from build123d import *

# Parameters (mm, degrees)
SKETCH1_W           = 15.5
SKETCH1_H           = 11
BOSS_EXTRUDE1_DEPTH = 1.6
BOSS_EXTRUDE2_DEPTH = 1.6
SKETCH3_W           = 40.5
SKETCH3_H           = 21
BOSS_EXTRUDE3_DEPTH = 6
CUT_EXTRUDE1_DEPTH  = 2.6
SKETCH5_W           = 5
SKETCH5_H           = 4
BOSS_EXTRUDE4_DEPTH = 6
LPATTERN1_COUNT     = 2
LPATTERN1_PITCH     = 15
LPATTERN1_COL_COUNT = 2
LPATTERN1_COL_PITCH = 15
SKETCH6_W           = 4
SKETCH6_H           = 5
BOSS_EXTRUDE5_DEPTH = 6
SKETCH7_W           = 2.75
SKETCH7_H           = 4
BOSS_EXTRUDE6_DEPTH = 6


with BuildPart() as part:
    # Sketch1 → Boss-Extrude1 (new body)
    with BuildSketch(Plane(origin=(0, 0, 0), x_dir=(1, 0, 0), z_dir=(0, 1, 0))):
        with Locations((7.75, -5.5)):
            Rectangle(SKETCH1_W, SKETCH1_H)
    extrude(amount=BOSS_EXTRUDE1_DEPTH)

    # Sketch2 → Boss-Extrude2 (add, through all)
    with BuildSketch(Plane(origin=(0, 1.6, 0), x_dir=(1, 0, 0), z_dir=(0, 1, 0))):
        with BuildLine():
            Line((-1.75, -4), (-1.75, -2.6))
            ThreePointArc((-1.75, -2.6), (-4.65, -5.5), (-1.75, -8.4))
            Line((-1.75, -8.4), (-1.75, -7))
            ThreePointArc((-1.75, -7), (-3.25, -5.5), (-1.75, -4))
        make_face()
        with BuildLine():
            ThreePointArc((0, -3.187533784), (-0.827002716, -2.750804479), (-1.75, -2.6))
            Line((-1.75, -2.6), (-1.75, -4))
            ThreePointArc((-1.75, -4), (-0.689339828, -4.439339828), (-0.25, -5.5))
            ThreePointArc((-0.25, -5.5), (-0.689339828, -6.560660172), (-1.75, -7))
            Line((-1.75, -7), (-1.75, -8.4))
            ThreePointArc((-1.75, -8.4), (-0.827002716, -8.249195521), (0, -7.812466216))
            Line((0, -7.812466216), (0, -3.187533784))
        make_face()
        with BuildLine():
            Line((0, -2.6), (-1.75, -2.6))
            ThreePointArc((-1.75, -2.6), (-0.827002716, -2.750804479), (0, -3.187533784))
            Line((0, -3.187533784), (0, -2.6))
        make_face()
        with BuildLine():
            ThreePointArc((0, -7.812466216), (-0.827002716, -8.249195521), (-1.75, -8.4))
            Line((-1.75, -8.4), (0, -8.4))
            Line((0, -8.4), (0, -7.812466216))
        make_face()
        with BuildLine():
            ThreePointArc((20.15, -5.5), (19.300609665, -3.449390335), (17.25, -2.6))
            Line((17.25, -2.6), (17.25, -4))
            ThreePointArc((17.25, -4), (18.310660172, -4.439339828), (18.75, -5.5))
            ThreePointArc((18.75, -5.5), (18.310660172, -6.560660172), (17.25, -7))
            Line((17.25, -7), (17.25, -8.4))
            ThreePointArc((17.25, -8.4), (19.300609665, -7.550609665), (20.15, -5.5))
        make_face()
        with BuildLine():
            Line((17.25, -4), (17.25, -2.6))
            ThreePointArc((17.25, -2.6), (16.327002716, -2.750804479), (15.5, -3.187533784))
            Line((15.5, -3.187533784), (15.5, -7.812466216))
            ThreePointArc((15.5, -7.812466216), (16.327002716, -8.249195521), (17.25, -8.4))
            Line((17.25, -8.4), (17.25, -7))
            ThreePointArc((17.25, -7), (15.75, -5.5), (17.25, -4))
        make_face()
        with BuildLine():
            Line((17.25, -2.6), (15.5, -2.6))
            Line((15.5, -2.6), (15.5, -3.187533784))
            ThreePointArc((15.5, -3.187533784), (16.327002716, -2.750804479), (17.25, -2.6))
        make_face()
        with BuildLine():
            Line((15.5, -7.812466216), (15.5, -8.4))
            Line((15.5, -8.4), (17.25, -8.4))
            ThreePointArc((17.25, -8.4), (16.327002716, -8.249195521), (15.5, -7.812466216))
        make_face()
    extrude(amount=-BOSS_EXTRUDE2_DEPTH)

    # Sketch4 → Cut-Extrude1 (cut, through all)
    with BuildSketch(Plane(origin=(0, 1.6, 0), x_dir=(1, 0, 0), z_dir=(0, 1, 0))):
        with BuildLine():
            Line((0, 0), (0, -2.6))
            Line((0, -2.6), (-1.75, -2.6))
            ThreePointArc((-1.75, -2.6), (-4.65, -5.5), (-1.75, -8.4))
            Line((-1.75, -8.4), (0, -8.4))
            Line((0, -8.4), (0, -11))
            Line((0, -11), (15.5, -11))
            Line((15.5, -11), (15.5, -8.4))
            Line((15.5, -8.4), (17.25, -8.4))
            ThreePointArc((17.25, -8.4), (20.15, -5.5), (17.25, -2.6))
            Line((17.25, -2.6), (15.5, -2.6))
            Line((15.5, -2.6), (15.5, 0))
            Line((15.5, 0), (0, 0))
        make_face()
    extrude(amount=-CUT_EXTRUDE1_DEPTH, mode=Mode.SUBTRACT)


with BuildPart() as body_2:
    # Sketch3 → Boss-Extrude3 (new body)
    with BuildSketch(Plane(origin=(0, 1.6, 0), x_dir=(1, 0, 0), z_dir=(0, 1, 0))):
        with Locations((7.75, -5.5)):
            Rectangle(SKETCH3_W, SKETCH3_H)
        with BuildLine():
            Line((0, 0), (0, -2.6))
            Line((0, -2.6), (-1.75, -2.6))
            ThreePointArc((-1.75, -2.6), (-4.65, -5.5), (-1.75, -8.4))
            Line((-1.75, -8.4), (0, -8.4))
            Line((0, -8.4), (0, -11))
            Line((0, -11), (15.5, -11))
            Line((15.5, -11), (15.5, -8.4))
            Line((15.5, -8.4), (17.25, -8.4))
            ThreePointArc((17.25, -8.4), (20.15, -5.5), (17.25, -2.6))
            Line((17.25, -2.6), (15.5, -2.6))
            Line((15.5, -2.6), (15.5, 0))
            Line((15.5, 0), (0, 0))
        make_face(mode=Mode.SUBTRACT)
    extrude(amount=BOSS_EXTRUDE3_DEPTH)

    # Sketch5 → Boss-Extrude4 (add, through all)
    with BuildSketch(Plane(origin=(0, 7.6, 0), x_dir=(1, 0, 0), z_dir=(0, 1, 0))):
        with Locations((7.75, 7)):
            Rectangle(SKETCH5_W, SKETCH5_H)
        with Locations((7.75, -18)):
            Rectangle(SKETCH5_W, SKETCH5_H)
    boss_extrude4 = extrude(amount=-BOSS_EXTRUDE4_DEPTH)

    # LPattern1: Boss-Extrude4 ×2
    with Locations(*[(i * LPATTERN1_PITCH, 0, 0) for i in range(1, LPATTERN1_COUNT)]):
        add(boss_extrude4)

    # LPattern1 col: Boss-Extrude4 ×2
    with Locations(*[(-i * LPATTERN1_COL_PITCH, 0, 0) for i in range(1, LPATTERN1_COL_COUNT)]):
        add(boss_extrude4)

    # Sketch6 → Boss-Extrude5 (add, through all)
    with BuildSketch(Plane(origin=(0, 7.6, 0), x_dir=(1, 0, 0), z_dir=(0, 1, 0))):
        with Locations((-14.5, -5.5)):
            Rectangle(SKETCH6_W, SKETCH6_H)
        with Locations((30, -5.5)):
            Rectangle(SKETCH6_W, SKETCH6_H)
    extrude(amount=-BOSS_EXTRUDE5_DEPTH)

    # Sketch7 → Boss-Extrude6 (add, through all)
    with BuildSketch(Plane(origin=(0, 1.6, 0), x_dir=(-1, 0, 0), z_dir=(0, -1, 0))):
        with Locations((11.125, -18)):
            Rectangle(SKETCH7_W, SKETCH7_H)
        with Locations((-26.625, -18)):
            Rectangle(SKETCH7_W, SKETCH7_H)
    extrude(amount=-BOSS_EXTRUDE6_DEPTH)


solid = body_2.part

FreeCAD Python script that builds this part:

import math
import FreeCAD as App
import Part
import Sketcher
Q = App.Units.Quantity


def add_polygon(sketch, points):
    """Adds a closed chain of lines whose ends are joined by coincident constraints."""
    first, n = sketch.GeometryCount, len(points)
    for a, b in zip(points, points[1:] + points[:1]):
        sketch.addGeometry(Part.LineSegment(App.Vector(*a, 0), App.Vector(*b, 0)), False)
    for i in range(n):
        sketch.addConstraint(Sketcher.Constraint("Coincident", first + i, 2, first + (i + 1) % n, 1))

doc = App.newDocument("Part")
body = doc.addObject("PartDesign::Body", "Body")

sketch1 = body.newObject("Sketcher::SketchObject", "Sketch")
sketch1.AttachmentSupport = (doc.getObject("XZ_Plane"), [""])
sketch1.MapMode = "FlatFace"
add_polygon(sketch1, [(0, 0), (0, 11), (16, 11), (16, 0)])
sketch1.addConstraint([
    Sketcher.Constraint("Vertical", 0),
    Sketcher.Constraint("Horizontal", 1),
    Sketcher.Constraint("Vertical", 2),
    Sketcher.Constraint("Horizontal", 3),
    Sketcher.Constraint("Coincident", 3, 2, -1, 1),
    Sketcher.Constraint("DistanceY", 0, 1, 0, 2, Q("11 mm")),
    Sketcher.Constraint("DistanceX", 1, 1, 1, 2, Q("15.5 mm")),
])
pad1 = body.newObject("PartDesign::Pad", "Pad")
pad1.Profile = sketch1
pad1.Length = 1.6
pad1.Reversed = True

sketch2 = body.newObject("Sketcher::SketchObject", "Sketch001")
sketch2.AttachmentSupport = (doc.getObject("XZ_Plane"), [""])
sketch2.MapMode = "FlatFace"
sketch2.AttachmentOffset = App.Placement(App.Vector(0, 0, -1.6), App.Rotation())
sketch2.addGeometry([
    Part.ArcOfCircle(Part.Circle(App.Vector(-1.8, 5.5, 0), App.Vector(0, 0, 1), 2.9), math.radians(90), math.radians(270)),
    Part.LineSegment(App.Vector(-1.8, 8.4, 0), App.Vector(0, 8.4, 0)),
    Part.LineSegment(App.Vector(0, 8.4, 0), App.Vector(0, 2.6, 0)),
    Part.LineSegment(App.Vector(0, 2.6, 0), App.Vector(-1.8, 2.6, 0)),
    Part.ArcOfCircle(Part.Circle(App.Vector(-1.8, 5.5, 0), App.Vector(0, 0, 1), 1.5), math.radians(90), math.radians(270)),
    Part.ArcOfCircle(Part.Circle(App.Vector(-1.7, 5.5, 0), App.Vector(0, 0, 1), 1.5), math.radians(-90), math.radians(0)),
    Part.ArcOfCircle(Part.Circle(App.Vector(-1.7, 5.5, 0), App.Vector(0, 0, 1), 1.5), math.radians(0), math.radians(90)),
    Part.ArcOfCircle(Part.Circle(App.Vector(17.2, 5.5, 0), App.Vector(0, 0, 1), 2.9), math.radians(-90), math.radians(0)),
    Part.LineSegment(App.Vector(17.2, 2.6, 0), App.Vector(15.5, 2.6, 0)),
    Part.LineSegment(App.Vector(15.5, 2.6, 0), App.Vector(15.5, 8.4, 0)),
    Part.LineSegment(App.Vector(15.5, 8.4, 0), App.Vector(17.2, 8.4, 0)),
    Part.ArcOfCircle(Part.Circle(App.Vector(17.2, 5.5, 0), App.Vector(0, 0, 1), 2.9), math.radians(0), math.radians(90)),
    Part.ArcOfCircle(Part.Circle(App.Vector(17.3, 5.5, 0), App.Vector(0, 0, 1), 1.5), math.radians(-90), math.radians(0)),
    Part.ArcOfCircle(Part.Circle(App.Vector(17.3, 5.5, 0), App.Vector(0, 0, 1), 1.5), math.radians(0), math.radians(90)),
    Part.ArcOfCircle(Part.Circle(App.Vector(17.2, 5.5, 0), App.Vector(0, 0, 1), 1.5), math.radians(90), math.radians(270)),
], False)
sketch2.addConstraint([
    Sketcher.Constraint("Tangent", 0, 1, 1, 1),
    Sketcher.Constraint("Coincident", 1, 2, 2, 1),
    Sketcher.Constraint("Coincident", 2, 2, 3, 1),
    Sketcher.Constraint("Tangent", 3, 2, 0, 2),
    Sketcher.Constraint("Tangent", 4, 2, 5, 1),
    Sketcher.Constraint("Tangent", 5, 2, 6, 1),
    Sketcher.Constraint("Tangent", 6, 2, 4, 1),
    Sketcher.Constraint("Tangent", 7, 1, 8, 1),
    Sketcher.Constraint("Coincident", 8, 2, 9, 1),
    Sketcher.Constraint("Coincident", 9, 2, 10, 1),
    Sketcher.Constraint("Tangent", 10, 2, 11, 2),
    Sketcher.Constraint("Tangent", 11, 1, 7, 2),
    Sketcher.Constraint("Tangent", 12, 2, 13, 1),
    Sketcher.Constraint("Tangent", 13, 2, 14, 1),
    Sketcher.Constraint("Tangent", 14, 2, 12, 1),
    Sketcher.Constraint("Horizontal", 1),
    Sketcher.Constraint("Vertical", 2),
    Sketcher.Constraint("Horizontal", 3),
    Sketcher.Constraint("Horizontal", 8),
    Sketcher.Constraint("Vertical", 9),
    Sketcher.Constraint("Horizontal", 10),
    Sketcher.Constraint("Coincident", 4, 3, 0, 3),
    Sketcher.Constraint("Coincident", 12, 3, 7, 3),
    Sketcher.Constraint("Equal", 0, 7),
    Sketcher.Constraint("Equal", 7, 11),
    Sketcher.Constraint("Equal", 6, 12),
    Sketcher.Constraint("PointOnObject", 1, 2, -2),
    Sketcher.Constraint("Horizontal", 6, 3, 7, 3),
    Sketcher.Constraint("Horizontal", 14, 3, 5, 2),
    Sketcher.Constraint("Horizontal", 5, 2, 11, 1),
    Sketcher.Constraint("Horizontal", 11, 1, 12, 2),
    Sketcher.Constraint("Vertical", 3, 2, 4, 2),
    Sketcher.Constraint("Vertical", 4, 2, 6, 2),
    Sketcher.Constraint("Vertical", 10, 2, 13, 2),
    Sketcher.Constraint("Vertical", 13, 2, 14, 2),
    Sketcher.Constraint("Equal", 3, 8),
    Sketcher.Constraint("Radius", 0, Q("2.9 mm")),
    Sketcher.Constraint("Radius", 4, Q("1.5 mm")),
    Sketcher.Constraint("DistanceY", -1, 1, 4, 2, Q("4 mm")),
    Sketcher.Constraint("DistanceX", 5, 3, 7, 3, Q("19 mm")),
    Sketcher.Constraint("DistanceX", 1, 1, 1, 2, Q("1.75 mm")),
])
pad2 = body.newObject("PartDesign::Pad", "Pad001")
pad2.Profile = sketch2
pad2.Type = "UpToLast"

sketch3 = body.newObject("Sketcher::SketchObject", "Sketch002")
sketch3.AttachmentSupport = (doc.getObject("XZ_Plane"), [""])
sketch3.MapMode = "FlatFace"
sketch3.AttachmentOffset = App.Placement(App.Vector(0, 0, -1.6), App.Rotation())
sketch3.addGeometry([
    Part.LineSegment(App.Vector(0, 0, 0), App.Vector(0, 2.6, 0)),
    Part.LineSegment(App.Vector(0, 2.6, 0), App.Vector(-1.8, 2.6, 0)),
    Part.ArcOfCircle(Part.Circle(App.Vector(-1.8, 5.5, 0), App.Vector(0, 0, 1), 2.9), math.radians(90), math.radians(270)),
    Part.LineSegment(App.Vector(-1.8, 8.4, 0), App.Vector(0, 8.4, 0)),
    Part.LineSegment(App.Vector(0, 8.4, 0), App.Vector(0, 11, 0)),
    Part.LineSegment(App.Vector(0, 11, 0), App.Vector(15.5, 11, 0)),
    Part.LineSegment(App.Vector(15.5, 11, 0), App.Vector(15.5, 8.4, 0)),
    Part.LineSegment(App.Vector(15.5, 8.4, 0), App.Vector(17.2, 8.4, 0)),
    Part.ArcOfCircle(Part.Circle(App.Vector(17.2, 5.5, 0), App.Vector(0, 0, 1), 2.9), math.radians(-90), math.radians(90)),
    Part.LineSegment(App.Vector(17.2, 2.6, 0), App.Vector(15.5, 2.6, 0)),
    Part.LineSegment(App.Vector(15.5, 2.6, 0), App.Vector(15.5, 0, 0)),
    Part.LineSegment(App.Vector(15.5, 0, 0), App.Vector(0, 0, 0)),
], False)
sketch3.addConstraint([
    Sketcher.Constraint("Coincident", 0, 2, 1, 1),
    Sketcher.Constraint("Tangent", 1, 2, 2, 2),
    Sketcher.Constraint("Tangent", 2, 1, 3, 1),
    Sketcher.Constraint("Coincident", 3, 2, 4, 1),
    Sketcher.Constraint("Coincident", 4, 2, 5, 1),
    Sketcher.Constraint("Coincident", 5, 2, 6, 1),
    Sketcher.Constraint("Coincident", 6, 2, 7, 1),
    Sketcher.Constraint("Tangent", 7, 2, 8, 2),
    Sketcher.Constraint("Tangent", 8, 1, 9, 1),
    Sketcher.Constraint("Coincident", 9, 2, 10, 1),
    Sketcher.Constraint("Coincident", 10, 2, 11, 1),
    Sketcher.Constraint("Coincident", 11, 2, 0, 1),
    Sketcher.Constraint("Vertical", 0),
    Sketcher.Constraint("Horizontal", 1),
    Sketcher.Constraint("Horizontal", 3),
    Sketcher.Constraint("Vertical", 4),
    Sketcher.Constraint("Horizontal", 5),
    Sketcher.Constraint("Vertical", 6),
    Sketcher.Constraint("Horizontal", 7),
    Sketcher.Constraint("Horizontal", 9),
    Sketcher.Constraint("Vertical", 10),
    Sketcher.Constraint("Horizontal", 11),
    Sketcher.Constraint("Coincident", 11, 2, -1, 1),
    Sketcher.Constraint("Equal", 2, 8),
    Sketcher.Constraint("PointOnObject", 3, 2, -2),
    Sketcher.Constraint("Horizontal", 2, 3, 8, 3),
    Sketcher.Constraint("Vertical", 6, 2, 9, 2),
    Sketcher.Constraint("Equal", 3, 7),
    Sketcher.Constraint("Equal", 0, 4),
    Sketcher.Constraint("Radius", 2, Q("2.9 mm")),
    Sketcher.Constraint("DistanceX", 5, 1, 5, 2, Q("15.5 mm")),
    Sketcher.Constraint("DistanceY", 0, 1, 0, 2, Q("2.6 mm")),
    Sketcher.Constraint("DistanceX", 2, 3, 8, 3, Q("19 mm")),
])
pocket1 = body.newObject("PartDesign::Pocket", "Pocket")
pocket1.Profile = sketch3
pocket1.Type = "ThroughAll"
pocket1.Reversed = True
body2 = doc.addObject("PartDesign::Body", "Body001")

sketch4 = body2.newObject("Sketcher::SketchObject", "Sketch003")
sketch4.AttachmentSupport = (doc.getObject("XZ_Plane001"), [""])
sketch4.MapMode = "FlatFace"
sketch4.AttachmentOffset = App.Placement(App.Vector(0, 0, -1.6), App.Rotation())
add_polygon(sketch4, [(-12.5, -5), (-12.5, 16), (28, 16), (28, -5)])
sketch4.addGeometry(Part.LineSegment(App.Vector(0, 2.6, 0), App.Vector(0, 0, 0)), False)
sketch4.addGeometry(Part.LineSegment(App.Vector(0, 0, 0), App.Vector(15.5, 0, 0)), False)
sketch4.addGeometry(Part.LineSegment(App.Vector(15.5, 0, 0), App.Vector(15.5, 2.6, 0)), False)
sketch4.addGeometry(Part.LineSegment(App.Vector(15.5, 2.6, 0), App.Vector(17.2, 2.6, 0)), False)
sketch4.addGeometry(Part.ArcOfCircle(Part.Circle(App.Vector(17.2, 5.5, 0), App.Vector(0, 0, 1), 2.9), math.radians(-90), math.radians(90)), False)
sketch4.addGeometry(Part.LineSegment(App.Vector(17.2, 8.4, 0), App.Vector(15.5, 8.4, 0)), False)
sketch4.addGeometry(Part.LineSegment(App.Vector(15.5, 8.4, 0), App.Vector(15.5, 11, 0)), False)
sketch4.addGeometry(Part.LineSegment(App.Vector(15.5, 11, 0), App.Vector(0, 11, 0)), False)
sketch4.addGeometry(Part.LineSegment(App.Vector(0, 11, 0), App.Vector(0, 8.4, 0)), False)
sketch4.addGeometry(Part.LineSegment(App.Vector(0, 8.4, 0), App.Vector(-1.8, 8.4, 0)), False)
sketch4.addGeometry(Part.ArcOfCircle(Part.Circle(App.Vector(-1.8, 5.5, 0), App.Vector(0, 0, 1), 2.9), math.radians(90), math.radians(270)), False)
sketch4.addGeometry(Part.LineSegment(App.Vector(-1.8, 2.6, 0), App.Vector(0, 2.6, 0)), False)
sketch4.addConstraint([
    Sketcher.Constraint("Coincident", 4, 2, 5, 1),
    Sketcher.Constraint("Coincident", 5, 2, 6, 1),
    Sketcher.Constraint("Coincident", 6, 2, 7, 1),
    Sketcher.Constraint("Tangent", 7, 2, 8, 1),
    Sketcher.Constraint("Tangent", 8, 2, 9, 1),
    Sketcher.Constraint("Coincident", 9, 2, 10, 1),
    Sketcher.Constraint("Coincident", 10, 2, 11, 1),
    Sketcher.Constraint("Coincident", 11, 2, 12, 1),
    Sketcher.Constraint("Coincident", 12, 2, 13, 1),
    Sketcher.Constraint("Tangent", 13, 2, 14, 1),
    Sketcher.Constraint("Tangent", 14, 2, 15, 1),
    Sketcher.Constraint("Coincident", 15, 2, 4, 1),
    Sketcher.Constraint("Vertical", 0),
    Sketcher.Constraint("Horizontal", 1),
    Sketcher.Constraint("Vertical", 2),
    Sketcher.Constraint("Horizontal", 3),
    Sketcher.Constraint("Vertical", 4),
    Sketcher.Constraint("Horizontal", 5),
    Sketcher.Constraint("Vertical", 6),
    Sketcher.Constraint("Horizontal", 7),
    Sketcher.Constraint("Horizontal", 9),
    Sketcher.Constraint("Vertical", 10),
    Sketcher.Constraint("Horizontal", 11),
    Sketcher.Constraint("Vertical", 12),
    Sketcher.Constraint("Horizontal", 13),
    Sketcher.Constraint("Horizontal", 15),
    Sketcher.Constraint("Coincident", 4, 2, -1, 1),
    Sketcher.Constraint("Equal", 8, 14),
    Sketcher.Constraint("PointOnObject", 11, 2, -2),
    Sketcher.Constraint("Horizontal", 8, 3, 14, 3),
    Sketcher.Constraint("Vertical", 6, 2, 9, 2),
    Sketcher.Constraint("Equal", 9, 13),
    Sketcher.Constraint("Equal", 6, 10),
    Sketcher.Constraint("Radius", 8, Q("2.9 mm")),
    Sketcher.Constraint("DistanceY", 0, 1, 0, 2, Q("21 mm")),
    Sketcher.Constraint("DistanceX", 1, 1, 1, 2, Q("40.5 mm")),
    Sketcher.Constraint("DistanceX", 5, 1, 5, 2, Q("15.5 mm")),
    Sketcher.Constraint("DistanceY", 4, 2, 4, 1, Q("2.6 mm")),
    Sketcher.Constraint("DistanceY", -1, 1, 0, 2, Q("16 mm")),
    Sketcher.Constraint("DistanceX", -1, 1, 1, 2, Q("28 mm")),
    Sketcher.Constraint("DistanceX", 14, 3, 8, 3, Q("19 mm")),
])
pad3 = body2.newObject("PartDesign::Pad", "Pad002")
pad3.Profile = sketch4
pad3.Length = 6
pad3.Reversed = True

sketch5 = body2.newObject("Sketcher::SketchObject", "Sketch004")
sketch5.AttachmentSupport = (doc.getObject("XZ_Plane001"), [""])
sketch5.MapMode = "FlatFace"
sketch5.AttachmentOffset = App.Placement(App.Vector(0, 0, -7.6), App.Rotation())
add_polygon(sketch5, [(5.2, -9), (5.2, -5), (10.2, -5), (10.2, -9)])
add_polygon(sketch5, [(5.2, 16), (5.2, 20), (10.2, 20), (10.2, 16)])
sketch5.addConstraint([
    Sketcher.Constraint("Vertical", 0),
    Sketcher.Constraint("Horizontal", 1),
    Sketcher.Constraint("Vertical", 2),
    Sketcher.Constraint("Horizontal", 3),
    Sketcher.Constraint("Vertical", 4),
    Sketcher.Constraint("Horizontal", 5),
    Sketcher.Constraint("Vertical", 6),
    Sketcher.Constraint("Horizontal", 7),
    Sketcher.Constraint("Vertical", 3, 2, 4, 2),
    Sketcher.Constraint("Vertical", 2, 2, 5, 2),
    Sketcher.Constraint("Equal", 2, 4),
    Sketcher.Constraint("DistanceX", 1, 1, 1, 2, Q("5 mm")),
    Sketcher.Constraint("DistanceY", 0, 1, 0, 2, Q("4 mm")),
    Sketcher.Constraint("DistanceY", 0, 2, -1, 1, Q("5 mm")),
    Sketcher.Constraint("DistanceY", -1, 1, 4, 2, Q("20 mm")),
    Sketcher.Constraint("DistanceX", -1, 1, 0, 2, Q("5.25 mm")),
])
pad4 = body2.newObject("PartDesign::Pad", "Pad003")
pad4.Profile = sketch5
pad4.Length = 6
doc.recompute()

linearpattern = body2.newObject("PartDesign::LinearPattern", "LinearPattern")
linearpattern.Originals = [pad4]
linearpattern.Direction = (doc.getObject("X_Axis001"), [""])
linearpattern.Mode = "offset"
linearpattern.Offset = 15
linearpattern.Occurrences = 2
body2.Tip = linearpattern
doc.recompute()

linearpattern2 = body2.newObject("PartDesign::LinearPattern", "LinearPattern001")
linearpattern2.Originals = [pad4]
linearpattern2.Direction = (doc.getObject("X_Axis001"), [""])
linearpattern2.Mode = "offset"
linearpattern2.Offset = 15
linearpattern2.Occurrences = 2
linearpattern2.Reversed = True
body2.Tip = linearpattern2

sketch6 = body2.newObject("Sketcher::SketchObject", "Sketch005")
sketch6.AttachmentSupport = (doc.getObject("XZ_Plane001"), [""])
sketch6.MapMode = "FlatFace"
sketch6.AttachmentOffset = App.Placement(App.Vector(0, 0, -7.6), App.Rotation())
add_polygon(sketch6, [(-16.5, 3), (-16.5, 8), (-12.5, 8), (-12.5, 3)])
add_polygon(sketch6, [(28, 3), (28, 8), (32, 8), (32, 3)])
sketch6.addConstraint([
    Sketcher.Constraint("Vertical", 0),
    Sketcher.Constraint("Horizontal", 1),
    Sketcher.Constraint("Vertical", 2),
    Sketcher.Constraint("Horizontal", 3),
    Sketcher.Constraint("Vertical", 4),
    Sketcher.Constraint("Horizontal", 5),
    Sketcher.Constraint("Vertical", 6),
    Sketcher.Constraint("Horizontal", 7),
    Sketcher.Constraint("Horizontal", 1, 2, 4, 2),
    Sketcher.Constraint("Horizontal", 3, 2, 6, 2),
    Sketcher.Constraint("Equal", 3, 5),
    Sketcher.Constraint("DistanceX", 1, 1, 1, 2, Q("4 mm")),
    Sketcher.Constraint("DistanceY", 0, 1, 0, 2, Q("5 mm")),
    Sketcher.Constraint("DistanceY", -1, 1, 0, 2, Q("8 mm")),
    Sketcher.Constraint("DistanceX", -1, 1, 4, 2, Q("28 mm")),
    Sketcher.Constraint("DistanceX", 0, 2, -1, 1, Q("16.5 mm")),
])
pad5 = body2.newObject("PartDesign::Pad", "Pad004")
pad5.Profile = sketch6
pad5.Length = 6

sketch7 = body2.newObject("Sketcher::SketchObject", "Sketch006")
sketch7.AttachmentSupport = (doc.getObject("XZ_Plane001"), [""])
sketch7.MapMode = "FlatFace"
sketch7.AttachmentOffset = App.Placement(App.Vector(0, 0, -1.6), App.Rotation())
add_polygon(sketch7, [(-9.8, 16), (-9.8, 20), (-12.5, 20), (-12.5, 16)])
add_polygon(sketch7, [(28, 16), (28, 20), (25.2, 20), (25.2, 16)])
sketch7.addConstraint([
    Sketcher.Constraint("Vertical", 0),
    Sketcher.Constraint("Horizontal", 1),
    Sketcher.Constraint("Vertical", 2),
    Sketcher.Constraint("Horizontal", 3),
    Sketcher.Constraint("Vertical", 4),
    Sketcher.Constraint("Horizontal", 5),
    Sketcher.Constraint("Vertical", 6),
    Sketcher.Constraint("Horizontal", 7),
    Sketcher.Constraint("Horizontal", 1, 2, 4, 2),
    Sketcher.Constraint("Horizontal", 3, 2, 6, 2),
    Sketcher.Constraint("Equal", 3, 5),
    Sketcher.Constraint("DistanceY", 0, 1, 0, 2, Q("4 mm")),
    Sketcher.Constraint("DistanceY", -1, 1, 0, 2, Q("20 mm")),
    Sketcher.Constraint("DistanceX", -1, 1, 4, 2, Q("28 mm")),
    Sketcher.Constraint("DistanceX", 0, 2, 5, 2, Q("35 mm")),
    Sketcher.Constraint("DistanceX", 1, 2, 1, 1, Q("2.75 mm")),
])
pad6 = body2.newObject("PartDesign::Pad", "Pad005")
pad6.Profile = sketch7
pad6.Type = "UpToLast"
pad6.Reversed = True

doc.recompute()
